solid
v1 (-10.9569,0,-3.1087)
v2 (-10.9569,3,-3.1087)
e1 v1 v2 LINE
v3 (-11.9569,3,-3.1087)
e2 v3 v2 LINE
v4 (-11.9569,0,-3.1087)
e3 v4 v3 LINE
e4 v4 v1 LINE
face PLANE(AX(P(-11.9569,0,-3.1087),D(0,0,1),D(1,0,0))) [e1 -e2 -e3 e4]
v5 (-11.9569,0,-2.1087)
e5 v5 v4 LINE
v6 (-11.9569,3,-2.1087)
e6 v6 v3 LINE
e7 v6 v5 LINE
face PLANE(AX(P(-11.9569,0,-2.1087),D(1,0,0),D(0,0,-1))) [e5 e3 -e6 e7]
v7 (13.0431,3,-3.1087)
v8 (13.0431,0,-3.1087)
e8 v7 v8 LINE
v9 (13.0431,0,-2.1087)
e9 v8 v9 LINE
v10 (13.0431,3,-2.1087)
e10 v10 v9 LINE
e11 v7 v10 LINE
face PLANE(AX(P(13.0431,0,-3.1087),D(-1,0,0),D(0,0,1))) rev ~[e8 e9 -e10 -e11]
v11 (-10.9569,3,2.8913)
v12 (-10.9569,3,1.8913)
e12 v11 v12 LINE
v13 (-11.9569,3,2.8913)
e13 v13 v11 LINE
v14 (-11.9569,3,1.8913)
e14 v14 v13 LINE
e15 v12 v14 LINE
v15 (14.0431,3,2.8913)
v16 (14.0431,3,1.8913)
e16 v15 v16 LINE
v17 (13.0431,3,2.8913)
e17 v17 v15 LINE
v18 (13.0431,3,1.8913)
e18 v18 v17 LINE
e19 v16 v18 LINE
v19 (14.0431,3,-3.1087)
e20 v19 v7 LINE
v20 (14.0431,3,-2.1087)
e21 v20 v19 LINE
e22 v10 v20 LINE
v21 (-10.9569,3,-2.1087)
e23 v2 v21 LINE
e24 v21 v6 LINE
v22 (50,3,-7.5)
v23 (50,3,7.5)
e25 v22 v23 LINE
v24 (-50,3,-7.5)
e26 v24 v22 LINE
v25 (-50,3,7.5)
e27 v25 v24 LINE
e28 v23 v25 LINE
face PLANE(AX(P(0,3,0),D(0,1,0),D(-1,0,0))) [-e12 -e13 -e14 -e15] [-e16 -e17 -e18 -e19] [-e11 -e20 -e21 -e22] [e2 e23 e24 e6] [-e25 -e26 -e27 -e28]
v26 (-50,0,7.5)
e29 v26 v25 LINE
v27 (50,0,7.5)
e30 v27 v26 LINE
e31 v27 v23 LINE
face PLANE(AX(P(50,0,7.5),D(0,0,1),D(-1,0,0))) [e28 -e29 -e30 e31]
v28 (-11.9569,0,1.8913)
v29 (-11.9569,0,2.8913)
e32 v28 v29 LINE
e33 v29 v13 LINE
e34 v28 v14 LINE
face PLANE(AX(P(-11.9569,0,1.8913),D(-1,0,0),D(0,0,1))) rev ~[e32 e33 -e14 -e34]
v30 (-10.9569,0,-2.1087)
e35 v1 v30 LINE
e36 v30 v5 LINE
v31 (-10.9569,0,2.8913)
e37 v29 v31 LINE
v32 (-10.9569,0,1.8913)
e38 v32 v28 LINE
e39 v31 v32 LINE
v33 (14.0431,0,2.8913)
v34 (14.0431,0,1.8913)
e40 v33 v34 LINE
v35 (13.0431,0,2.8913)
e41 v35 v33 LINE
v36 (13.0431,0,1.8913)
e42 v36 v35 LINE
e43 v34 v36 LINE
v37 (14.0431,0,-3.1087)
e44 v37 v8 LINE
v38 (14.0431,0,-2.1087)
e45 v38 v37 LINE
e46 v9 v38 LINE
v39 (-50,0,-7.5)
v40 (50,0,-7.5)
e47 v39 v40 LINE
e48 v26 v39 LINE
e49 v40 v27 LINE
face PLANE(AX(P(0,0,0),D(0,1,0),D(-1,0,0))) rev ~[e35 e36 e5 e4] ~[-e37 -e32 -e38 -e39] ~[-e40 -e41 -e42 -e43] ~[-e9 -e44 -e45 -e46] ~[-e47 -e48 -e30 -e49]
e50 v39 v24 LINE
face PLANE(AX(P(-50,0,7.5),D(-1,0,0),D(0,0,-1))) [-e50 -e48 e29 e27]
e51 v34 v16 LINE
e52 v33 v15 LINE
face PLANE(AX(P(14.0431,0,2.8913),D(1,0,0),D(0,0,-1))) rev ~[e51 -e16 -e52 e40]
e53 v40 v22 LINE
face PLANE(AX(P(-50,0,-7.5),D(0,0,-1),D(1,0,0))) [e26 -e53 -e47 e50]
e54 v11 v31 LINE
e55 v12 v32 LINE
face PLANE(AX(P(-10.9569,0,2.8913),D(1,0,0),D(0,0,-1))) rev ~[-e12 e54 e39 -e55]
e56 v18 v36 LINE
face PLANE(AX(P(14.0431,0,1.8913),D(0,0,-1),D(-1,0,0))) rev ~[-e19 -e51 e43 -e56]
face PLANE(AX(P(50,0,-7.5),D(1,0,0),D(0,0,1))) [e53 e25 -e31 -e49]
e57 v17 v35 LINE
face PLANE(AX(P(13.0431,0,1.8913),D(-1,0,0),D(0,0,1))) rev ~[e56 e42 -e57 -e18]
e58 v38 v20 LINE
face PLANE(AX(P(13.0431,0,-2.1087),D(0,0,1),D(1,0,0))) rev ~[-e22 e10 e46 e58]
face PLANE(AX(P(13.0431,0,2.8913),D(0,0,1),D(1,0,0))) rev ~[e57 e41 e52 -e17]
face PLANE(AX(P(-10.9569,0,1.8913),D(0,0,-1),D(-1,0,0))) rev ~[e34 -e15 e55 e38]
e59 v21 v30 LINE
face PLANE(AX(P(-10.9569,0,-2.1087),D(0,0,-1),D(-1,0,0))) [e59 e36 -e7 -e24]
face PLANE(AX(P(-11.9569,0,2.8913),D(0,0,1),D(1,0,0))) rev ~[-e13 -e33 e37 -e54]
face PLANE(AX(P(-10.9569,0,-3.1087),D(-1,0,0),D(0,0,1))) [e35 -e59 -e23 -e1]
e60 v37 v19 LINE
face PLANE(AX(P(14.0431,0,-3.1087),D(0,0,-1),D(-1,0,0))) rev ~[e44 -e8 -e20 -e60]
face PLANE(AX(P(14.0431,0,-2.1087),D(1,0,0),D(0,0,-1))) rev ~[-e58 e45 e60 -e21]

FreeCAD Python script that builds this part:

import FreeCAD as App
import Part
import Sketcher
Q = App.Units.Quantity


def add_polygon(sketch, points):
    """Adds a closed chain of lines whose ends are joined by coincident constraints."""
    first, n = sketch.GeometryCount, len(points)
    for a, b in zip(points, points[1:] + points[:1]):
        sketch.addGeometry(Part.LineSegment(App.Vector(*a, 0), App.Vector(*b, 0)), False)
    for i in range(n):
        sketch.addConstraint(Sketcher.Constraint("Coincident", first + i, 2, first + (i + 1) % n, 1))

doc = App.newDocument("Part")
body = doc.addObject("PartDesign::Body", "Body")

# Sketch on XZ plane
sketch1 = doc.addObject("Sketcher::SketchObject", "Sketch")
body.addObject(sketch1)
sketch1.AttachmentSupport = (doc.XZ_Plane, [""])
sketch1.MapMode = "FlatFace"
add_polygon(sketch1, [(-50, 8), (50, 8), (50, -8), (-50, -8)])  # lines 0-3
sketch1.addConstraint([
    Sketcher.Constraint("Horizontal", 0),
    Sketcher.Constraint("Vertical", 1),
    Sketcher.Constraint("Horizontal", 2),
    Sketcher.Constraint("Vertical", 3),
    Sketcher.Constraint("Symmetric", 0, 2, 2, 2, -1, 1),
    Sketcher.Constraint("DistanceX", 0, 1, 0, 2, Q("100 mm")),
    Sketcher.Constraint("DistanceY", 1, 2, 1, 1, Q("15 mm")),
])
pad1 = doc.addObject("PartDesign::Pad", "Pad")
body.addObject(pad1)
pad1.Profile = sketch1
pad1.Length = 3
pad1.Reversed = True

# Sketch on XZ plane
sketch2 = doc.addObject("Sketcher::SketchObject", "Sketch001")
body.addObject(sketch2)
sketch2.AttachmentSupport = (doc.XZ_Plane, [""])
sketch2.MapMode = "FlatFace"
add_polygon(sketch2, [(14, 2.9), (13, 2.9), (13, 1.9), (14, 1.9)])  # lines 0-3
add_polygon(sketch2, [(14, -2.1), (13, -2.1), (13, -3.1), (14, -3.1)])  # lines 4-7
add_polygon(sketch2, [(-12, 1.9), (-11, 1.9), (-11, 2.9), (-12, 2.9)])  # lines 8-11
add_polygon(sketch2, [(-11, -3.1), (-11, -2.1), (-12, -2.1), (-12, -3.1)])  # lines 12-15
sketch2.addConstraint([
    Sketcher.Constraint("Horizontal", 0),
    Sketcher.Constraint("Vertical", 1),
    Sketcher.Constraint("Horizontal", 2),
    Sketcher.Constraint("Vertical", 3),
    Sketcher.Constraint("Horizontal", 4),
    Sketcher.Constraint("Vertical", 5),
    Sketcher.Constraint("Horizontal", 6),
    Sketcher.Constraint("Vertical", 7),
    Sketcher.Constraint("Horizontal", 8),
    Sketcher.Constraint("Vertical", 9),
    Sketcher.Constraint("Horizontal", 10),
    Sketcher.Constraint("Vertical", 11),
    Sketcher.Constraint("Vertical", 12),
    Sketcher.Constraint("Horizontal", 13),
    Sketcher.Constraint("Vertical", 14),
    Sketcher.Constraint("Horizontal", 15),
    Sketcher.Constraint("Horizontal", 2, 2, 8, 2),
    Sketcher.Constraint("Horizontal", 3, 2, 9, 2),
    Sketcher.Constraint("Horizontal", 7, 2, 12, 2),
    Sketcher.Constraint("Horizontal", 6, 2, 14, 2),
    Sketcher.Constraint("Vertical", 1, 2, 4, 2),
    Sketcher.Constraint("Vertical", 3, 2, 6, 2),
    Sketcher.Constraint("Vertical", 9, 2, 12, 2),
    Sketcher.Constraint("Vertical", 11, 2, 13, 2),
    Sketcher.Constraint("Equal", 6, 8),
    Sketcher.Constraint("Equal", 15, 1),
    Sketcher.Constraint("Equal", 3, 5),
    Sketcher.Constraint("DistanceX", 0, 2, 0, 1, Q("1 mm")),
    Sketcher.Constraint("DistanceY", 4, 2, 1, 2, Q("4 mm")),
    Sketcher.Constraint("DistanceX", 8, 2, 1, 2, Q("24 mm")),
    Sketcher.Constraint("DistanceX", -1, 1, 0, 2, Q("13.043 mm")),
    Sketcher.Constraint("DistanceY", -1, 1, 0, 2, Q("2.8913 mm")),
])
pocket1 = doc.addObject("PartDesign::Pocket", "Pocket")
body.addObject(pocket1)
pocket1.Profile = sketch2
pocket1.Length = 10
pocket1.Midplane = True

doc.recompute()
